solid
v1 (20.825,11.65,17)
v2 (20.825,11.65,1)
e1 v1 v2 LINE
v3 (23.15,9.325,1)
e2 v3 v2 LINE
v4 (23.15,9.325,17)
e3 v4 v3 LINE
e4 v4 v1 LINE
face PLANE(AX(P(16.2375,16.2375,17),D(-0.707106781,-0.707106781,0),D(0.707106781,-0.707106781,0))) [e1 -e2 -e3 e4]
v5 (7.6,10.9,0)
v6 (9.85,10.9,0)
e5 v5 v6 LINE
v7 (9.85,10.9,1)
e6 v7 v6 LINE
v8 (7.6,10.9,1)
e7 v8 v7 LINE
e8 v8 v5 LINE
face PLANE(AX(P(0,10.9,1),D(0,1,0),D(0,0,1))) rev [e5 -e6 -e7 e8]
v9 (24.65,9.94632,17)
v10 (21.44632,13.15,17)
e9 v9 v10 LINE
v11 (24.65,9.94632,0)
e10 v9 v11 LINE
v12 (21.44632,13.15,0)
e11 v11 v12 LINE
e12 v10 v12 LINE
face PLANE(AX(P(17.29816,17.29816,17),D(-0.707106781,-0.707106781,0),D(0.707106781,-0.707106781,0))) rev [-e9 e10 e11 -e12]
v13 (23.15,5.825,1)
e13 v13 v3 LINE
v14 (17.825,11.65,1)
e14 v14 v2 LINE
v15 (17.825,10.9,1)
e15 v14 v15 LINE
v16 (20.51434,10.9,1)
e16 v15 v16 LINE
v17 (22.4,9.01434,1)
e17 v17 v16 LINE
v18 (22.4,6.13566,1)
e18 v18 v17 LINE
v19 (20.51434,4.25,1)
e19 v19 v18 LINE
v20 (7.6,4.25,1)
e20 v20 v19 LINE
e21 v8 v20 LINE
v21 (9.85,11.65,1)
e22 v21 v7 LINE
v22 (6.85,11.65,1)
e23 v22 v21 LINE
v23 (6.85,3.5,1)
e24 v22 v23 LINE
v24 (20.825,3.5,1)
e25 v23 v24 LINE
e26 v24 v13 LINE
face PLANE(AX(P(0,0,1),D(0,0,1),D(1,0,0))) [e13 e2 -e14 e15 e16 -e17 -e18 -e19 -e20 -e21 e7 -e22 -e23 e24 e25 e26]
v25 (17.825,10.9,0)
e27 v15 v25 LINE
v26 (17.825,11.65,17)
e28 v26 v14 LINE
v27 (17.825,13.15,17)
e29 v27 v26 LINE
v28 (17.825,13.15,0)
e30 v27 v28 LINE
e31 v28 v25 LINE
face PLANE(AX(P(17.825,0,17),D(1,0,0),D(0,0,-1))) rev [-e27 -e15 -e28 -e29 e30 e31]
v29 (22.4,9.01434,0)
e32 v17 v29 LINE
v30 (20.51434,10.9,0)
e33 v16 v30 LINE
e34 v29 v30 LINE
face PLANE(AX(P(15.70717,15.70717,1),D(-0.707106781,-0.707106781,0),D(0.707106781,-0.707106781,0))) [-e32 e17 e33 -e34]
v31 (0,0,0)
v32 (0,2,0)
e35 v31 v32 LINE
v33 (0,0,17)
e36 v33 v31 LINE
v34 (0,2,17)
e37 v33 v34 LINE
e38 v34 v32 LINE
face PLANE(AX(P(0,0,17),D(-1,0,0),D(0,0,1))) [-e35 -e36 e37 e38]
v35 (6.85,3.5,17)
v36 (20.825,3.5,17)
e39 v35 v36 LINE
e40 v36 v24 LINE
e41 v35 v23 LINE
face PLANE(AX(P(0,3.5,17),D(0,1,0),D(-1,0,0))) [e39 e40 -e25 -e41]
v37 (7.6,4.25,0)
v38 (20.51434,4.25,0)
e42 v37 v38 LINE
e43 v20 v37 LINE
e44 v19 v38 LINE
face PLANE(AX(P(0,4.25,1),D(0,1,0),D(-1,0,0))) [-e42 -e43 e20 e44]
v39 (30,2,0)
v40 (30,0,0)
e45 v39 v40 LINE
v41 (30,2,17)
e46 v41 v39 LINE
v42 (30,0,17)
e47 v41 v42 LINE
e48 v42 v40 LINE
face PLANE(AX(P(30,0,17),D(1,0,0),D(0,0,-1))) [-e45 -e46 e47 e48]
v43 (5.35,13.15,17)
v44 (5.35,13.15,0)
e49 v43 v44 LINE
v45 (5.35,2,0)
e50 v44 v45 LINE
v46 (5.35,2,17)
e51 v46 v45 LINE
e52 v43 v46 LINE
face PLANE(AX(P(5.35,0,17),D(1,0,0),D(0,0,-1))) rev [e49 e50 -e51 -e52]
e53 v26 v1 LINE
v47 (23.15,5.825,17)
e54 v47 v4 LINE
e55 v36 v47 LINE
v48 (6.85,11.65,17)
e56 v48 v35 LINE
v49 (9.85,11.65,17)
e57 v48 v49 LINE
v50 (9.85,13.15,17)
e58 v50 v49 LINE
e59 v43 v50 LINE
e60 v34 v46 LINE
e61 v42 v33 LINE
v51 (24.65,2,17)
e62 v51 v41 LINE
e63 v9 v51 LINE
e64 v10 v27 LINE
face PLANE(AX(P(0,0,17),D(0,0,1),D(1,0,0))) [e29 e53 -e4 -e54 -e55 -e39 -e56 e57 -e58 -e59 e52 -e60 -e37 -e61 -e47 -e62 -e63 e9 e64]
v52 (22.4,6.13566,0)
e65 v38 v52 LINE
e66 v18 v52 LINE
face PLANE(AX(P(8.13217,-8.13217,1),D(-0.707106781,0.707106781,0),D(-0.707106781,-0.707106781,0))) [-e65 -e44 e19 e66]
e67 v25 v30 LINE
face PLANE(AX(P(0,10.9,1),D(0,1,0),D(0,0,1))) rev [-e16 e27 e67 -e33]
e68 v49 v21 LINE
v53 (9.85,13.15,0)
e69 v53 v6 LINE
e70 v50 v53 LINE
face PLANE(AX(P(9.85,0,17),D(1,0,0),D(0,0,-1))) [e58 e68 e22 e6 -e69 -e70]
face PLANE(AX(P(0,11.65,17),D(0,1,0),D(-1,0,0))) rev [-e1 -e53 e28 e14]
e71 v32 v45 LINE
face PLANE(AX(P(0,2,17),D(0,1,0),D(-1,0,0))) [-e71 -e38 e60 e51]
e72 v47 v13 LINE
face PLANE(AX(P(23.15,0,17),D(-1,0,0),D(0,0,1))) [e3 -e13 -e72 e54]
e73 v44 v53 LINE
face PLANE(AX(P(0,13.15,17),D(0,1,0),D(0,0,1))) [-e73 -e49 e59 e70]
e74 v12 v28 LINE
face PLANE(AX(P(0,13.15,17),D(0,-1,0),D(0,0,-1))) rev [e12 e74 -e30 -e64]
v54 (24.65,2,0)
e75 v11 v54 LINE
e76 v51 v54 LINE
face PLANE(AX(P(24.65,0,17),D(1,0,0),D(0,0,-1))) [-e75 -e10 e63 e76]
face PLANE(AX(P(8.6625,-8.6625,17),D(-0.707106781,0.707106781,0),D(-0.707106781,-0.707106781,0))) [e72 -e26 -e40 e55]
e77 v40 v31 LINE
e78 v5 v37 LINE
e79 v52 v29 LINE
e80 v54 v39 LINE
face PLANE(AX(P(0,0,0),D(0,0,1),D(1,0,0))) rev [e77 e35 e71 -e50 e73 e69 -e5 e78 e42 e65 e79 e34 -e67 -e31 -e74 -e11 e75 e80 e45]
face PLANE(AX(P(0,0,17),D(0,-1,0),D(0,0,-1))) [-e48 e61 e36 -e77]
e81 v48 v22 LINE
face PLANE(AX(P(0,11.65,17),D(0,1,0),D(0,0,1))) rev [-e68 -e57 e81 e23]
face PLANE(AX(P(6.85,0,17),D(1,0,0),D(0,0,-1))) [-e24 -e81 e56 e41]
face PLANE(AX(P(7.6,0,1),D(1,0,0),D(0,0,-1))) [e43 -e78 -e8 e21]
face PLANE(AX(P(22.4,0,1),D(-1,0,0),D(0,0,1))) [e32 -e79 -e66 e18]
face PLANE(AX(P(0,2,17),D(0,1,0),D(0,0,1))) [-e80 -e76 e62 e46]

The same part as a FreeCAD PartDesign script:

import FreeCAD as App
import Part
import Sketcher

V = App.Vector
Q = App.Units.Quantity


def add_polygon(sketch, points):
    """Adds a closed chain of lines whose ends are joined by coincident constraints."""
    first, n = sketch.GeometryCount, len(points)
    for a, b in zip(points, points[1:] + points[:1]):
        sketch.addGeometry(Part.LineSegment(App.Vector(*a, 0), App.Vector(*b, 0)), False)
    for i in range(n):
        sketch.addConstraint(Sketcher.Constraint("Coincident", first + i, 2, first + (i + 1) % n, 1))

doc = App.newDocument("Part")
params = doc.addObject("Spreadsheet::Sheet", "Params")
for row, (alias, value) in enumerate([
    ("sketch1_width", "30 mm"),
    ("sketch1_width2", "3 mm"),
    ("sketch1_height", "2 mm"),
    ("sketch1_width3", "4.5 mm"),
    ("sketch1_height2", "1.5 mm"),
    ("pad1_length", "17 mm"),
    ("sketch2_width", "3 mm"),
    ("sketch2_height", "3.5 mm"),
    ("sketch2_width2", "2.25 mm"),
    ("sketch2_height2", "0.75 mm"),
    ("sketch2_height3", "6.65 mm"),
    ("pad2_length", "1 mm"),
], start=1):
    params.set(f"A{row}", alias)
    params.set(f"B{row}", "=" + value)
    params.setAlias(f"B{row}", alias)

body = doc.addObject("PartDesign::Body", "Body")

# Sketch on XY plane
sketch1 = doc.addObject("Sketcher::SketchObject", "Sketch")
body.addObject(sketch1)
sketch1.AttachmentSupport = (doc.XY_Plane, [""])
sketch1.MapMode = "FlatFace"
add_polygon(sketch1, [(5.35, 13.15), (5.35, 2), (0, 2), (0, 0), (30, 0), (30, 2), (24.65, 2), (24.65, 9.94632), (21.44632, 13.15), (17.825, 13.15), (17.825, 11.65), (20.825, 11.65), (23.15, 9.325), (23.15, 5.825), (20.825, 3.5), (6.85, 3.5), (6.85, 11.65), (9.85, 11.65), (9.85, 13.15)])  # lines 0-18
sketch1.addConstraint(Sketcher.Constraint("Vertical", 0))
sketch1.addConstraint(Sketcher.Constraint("Horizontal", 1))
sketch1.addConstraint(Sketcher.Constraint("Vertical", 2))
sketch1.addConstraint(Sketcher.Constraint("Horizontal", 3))
sketch1.addConstraint(Sketcher.Constraint("Vertical", 4))
sketch1.addConstraint(Sketcher.Constraint("Horizontal", 5))
sketch1.addConstraint(Sketcher.Constraint("Vertical", 6))
sketch1.addConstraint(Sketcher.Constraint("Horizontal", 8))
sketch1.addConstraint(Sketcher.Constraint("Vertical", 9))
sketch1.addConstraint(Sketcher.Constraint("Horizontal", 10))
sketch1.addConstraint(Sketcher.Constraint("Vertical", 12))
sketch1.addConstraint(Sketcher.Constraint("Horizontal", 14))
sketch1.addConstraint(Sketcher.Constraint("Vertical", 15))
sketch1.addConstraint(Sketcher.Constraint("Horizontal", 16))
sketch1.addConstraint(Sketcher.Constraint("Vertical", 17))
sketch1.addConstraint(Sketcher.Constraint("Horizontal", 18))
sketch1.addConstraint(Sketcher.Constraint("Coincident", 2, 2, -1, 1))
sketch1.addConstraint(Sketcher.Constraint("Parallel", 7, 11))
sketch1.addConstraint(Sketcher.Constraint("Perpendicular", 11, 13))
sketch1.addConstraint(Sketcher.Constraint("Horizontal", 1, 2, 4, 2))
sketch1.addConstraint(Sketcher.Constraint("Horizontal", 10, 2, 15, 2))
sketch1.addConstraint(Sketcher.Constraint("Horizontal", 8, 2, 17, 2))
sketch1.addConstraint(Sketcher.Constraint("Vertical", 10, 2, 13, 2))
sketch1.addConstraint(Sketcher.Constraint("Equal", 1, 5))
sketch1.addConstraint(Sketcher.Constraint("Equal", 10, 16))
sketch1.addConstraint(Sketcher.Constraint("Equal", 11, 13))
sketch1.addConstraint(Sketcher.Constraint("DistanceX", 3, 1, 3, 2, Q("30 mm")))
sketch1.addConstraint(Sketcher.Constraint("DistanceX", 10, 1, 10, 2, Q("3 mm")))
sketch1.addConstraint(Sketcher.Constraint("DistanceY", 2, 2, 2, 1, Q("2 mm")))
sketch1.addConstraint(Sketcher.Constraint("DistanceX", 18, 2, 18, 1, Q("4.5 mm")))
sketch1.addConstraint(Sketcher.Constraint("DistanceY", 9, 2, 9, 1, Q("1.5 mm")))
sketch1.addConstraint(Sketcher.Constraint("DistanceY", 12, 2, 12, 1, Q("3.5 mm")))
sketch1.addConstraint(Sketcher.Constraint("DistanceX", 1, 2, 1, 1, Q("5.35 mm")))
sketch1.addConstraint(Sketcher.Constraint("DistanceY", 0, 2, 0, 1, Q("11.15 mm")))
sketch1.addConstraint(Sketcher.Constraint("DistanceY", 15, 1, 15, 2, Q("8.15 mm")))
sketch1.addConstraint(Sketcher.Constraint("DistanceX", 11, 2, 6, 2, Q("1.5 mm")))
sketch1.addConstraint(Sketcher.Constraint("DistanceX", 8, 2, 8, 1, Q("3.62132 mm")))
sketch1.setExpression("Constraints[45]", "Params.sketch1_width")
sketch1.setExpression("Constraints[46]", "Params.sketch1_width2")
sketch1.setExpression("Constraints[47]", "Params.sketch1_height")
sketch1.setExpression("Constraints[48]", "Params.sketch1_width3")
sketch1.setExpression("Constraints[49]", "Params.sketch1_height2")
pad1 = doc.addObject("PartDesign::Pad", "Pad")
body.addObject(pad1)
pad1.Profile = sketch1
pad1.setExpression("Length", "Params.pad1_length")

# Sketch on XY plane
sketch2 = doc.addObject("Sketcher::SketchObject", "Sketch001")
body.addObject(sketch2)
sketch2.AttachmentSupport = (doc.XY_Plane, [""])
sketch2.MapMode = "FlatFace"
add_polygon(sketch2, [(20.825, 11.65), (17.825, 11.65), (17.825, 10.9), (20.51434, 10.9), (22.4, 9.01434), (22.4, 6.13566), (20.51434, 4.25), (7.6, 4.25), (7.6, 10.9), (9.85, 10.9), (9.85, 11.65), (6.85, 11.65), (6.85, 3.5), (20.825, 3.5), (23.15, 5.825), (23.15, 9.325)])  # lines 0-15
sketch2.addConstraint(Sketcher.Constraint("Horizontal", 0))
sketch2.addConstraint(Sketcher.Constraint("Vertical", 1))
sketch2.addConstraint(Sketcher.Constraint("Horizontal", 2))
sketch2.addConstraint(Sketcher.Constraint("Vertical", 4))
sketch2.addConstraint(Sketcher.Constraint("Horizontal", 6))
sketch2.addConstraint(Sketcher.Constraint("Vertical", 7))
sketch2.addConstraint(Sketcher.Constraint("Horizontal", 8))
sketch2.addConstraint(Sketcher.Constraint("Vertical", 9))
sketch2.addConstraint(Sketcher.Constraint("Horizontal", 10))
sketch2.addConstraint(Sketcher.Constraint("Vertical", 11))
sketch2.addConstraint(Sketcher.Constraint("Horizontal", 12))
sketch2.addConstraint(Sketcher.Constraint("Vertical", 14))
sketch2.addConstraint(Sketcher.Constraint("Perpendicular", 3, 5))
sketch2.addConstraint(Sketcher.Constraint("Parallel", 5, 13))
sketch2.addConstraint(Sketcher.Constraint("Perpendicular", 13, 15))
sketch2.addConstraint(Sketcher.Constraint("Horizontal", 2, 2, 7, 2))
sketch2.addConstraint(Sketcher.Constraint("Horizontal", 0, 2, 9, 2))
sketch2.addConstraint(Sketcher.Constraint("Vertical", 2, 2, 5, 2))
sketch2.addConstraint(Sketcher.Constraint("Vertical", 12, 2, 15, 2))
sketch2.addConstraint(Sketcher.Constraint("Equal", 0, 10))
sketch2.addConstraint(Sketcher.Constraint("Equal", 3, 5))
sketch2.addConstraint(Sketcher.Constraint("DistanceX", 0, 2, 0, 1, Q("3 mm")))
sketch2.addConstraint(Sketcher.Constraint("DistanceY", 14, 1, 14, 2, Q("3.5 mm")))
sketch2.addConstraint(Sketcher.Constraint("DistanceX", 8, 1, 8, 2, Q("2.25 mm")))
sketch2.addConstraint(Sketcher.Constraint("DistanceY", 1, 2, 1, 1, Q("0.75 mm")))
sketch2.addConstraint(Sketcher.Constraint("DistanceY", 7, 1, 7, 2, Q("6.65 mm")))
sketch2.addConstraint(Sketcher.Constraint("DistanceY", 11, 2, 11, 1, Q("8.15 mm")))
sketch2.addConstraint(Sketcher.Constraint("DistanceY", -1, 1, 1, 2, Q("10.9 mm")))
sketch2.addConstraint(Sketcher.Constraint("DistanceX", -1, 1, 3, 2, Q("22.4 mm")))
sketch2.addConstraint(Sketcher.Constraint("DistanceX", -1, 1, 6, 2, Q("7.6 mm")))
sketch2.addConstraint(Sketcher.Constraint("DistanceX", 12, 1, 12, 2, Q("13.975 mm")))
sketch2.addConstraint(Sketcher.Constraint("DistanceX", 2, 1, 2, 2, Q("2.68934 mm")))
sketch2.setExpression("Constraints[37]", "Params.sketch2_width")
sketch2.setExpression("Constraints[38]", "Params.sketch2_height")
sketch2.setExpression("Constraints[39]", "Params.sketch2_width2")
sketch2.setExpression("Constraints[40]", "Params.sketch2_height2")
sketch2.setExpression("Constraints[41]", "Params.sketch2_height3")
pad2 = doc.addObject("PartDesign::Pad", "Pad001")
body.addObject(pad2)
pad2.Profile = sketch2
pad2.setExpression("Length", "Params.pad2_length")

doc.recompute()
